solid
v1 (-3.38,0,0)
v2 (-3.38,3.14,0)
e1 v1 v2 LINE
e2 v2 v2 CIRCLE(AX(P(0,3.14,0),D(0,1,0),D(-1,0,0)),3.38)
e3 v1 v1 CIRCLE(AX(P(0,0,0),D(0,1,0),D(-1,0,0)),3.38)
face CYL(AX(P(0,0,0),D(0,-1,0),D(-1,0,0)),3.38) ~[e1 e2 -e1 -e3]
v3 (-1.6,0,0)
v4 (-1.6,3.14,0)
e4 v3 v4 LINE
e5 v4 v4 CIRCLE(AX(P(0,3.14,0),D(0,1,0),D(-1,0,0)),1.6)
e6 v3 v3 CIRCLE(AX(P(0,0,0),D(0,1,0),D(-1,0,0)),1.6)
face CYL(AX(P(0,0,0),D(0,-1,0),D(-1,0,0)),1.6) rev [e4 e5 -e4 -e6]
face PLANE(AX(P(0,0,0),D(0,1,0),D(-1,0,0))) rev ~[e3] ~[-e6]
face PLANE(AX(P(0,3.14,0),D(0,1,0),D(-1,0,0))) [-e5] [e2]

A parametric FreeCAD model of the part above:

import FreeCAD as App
import Part
import Sketcher
from FreeCAD import Vector
Q = App.Units.Quantity

doc = App.newDocument("Part")
body = doc.addObject("PartDesign::Body", "Body")

# Sketch on XZ plane
sketch1 = body.newObject("Sketcher::SketchObject", "Sketch")
sketch1.AttachmentSupport = (doc.getObject("XZ_Plane"), [""])
sketch1.MapMode = "FlatFace"
sketch1.addGeometry([
    Part.Circle(Vector(0, 0, 0), Vector(0, 0, 1), 3.4),
    Part.Circle(Vector(0, 0, 0), Vector(0, 0, 1), 1.6),
], False)
sketch1.addConstraint([
    Sketcher.Constraint("Coincident", 0, 3, -1, 1),
    Sketcher.Constraint("Coincident", 1, 3, -1, 1),
    Sketcher.Constraint("Diameter", 1, Q("3.2 mm")),
    Sketcher.Constraint("Diameter", 0, Q("6.76 mm")),
])
pad1 = body.newObject("PartDesign::Pad", "Pad")
pad1.Profile = sketch1
pad1.Length = 3.14
pad1.Reversed = True

doc.recompute()
